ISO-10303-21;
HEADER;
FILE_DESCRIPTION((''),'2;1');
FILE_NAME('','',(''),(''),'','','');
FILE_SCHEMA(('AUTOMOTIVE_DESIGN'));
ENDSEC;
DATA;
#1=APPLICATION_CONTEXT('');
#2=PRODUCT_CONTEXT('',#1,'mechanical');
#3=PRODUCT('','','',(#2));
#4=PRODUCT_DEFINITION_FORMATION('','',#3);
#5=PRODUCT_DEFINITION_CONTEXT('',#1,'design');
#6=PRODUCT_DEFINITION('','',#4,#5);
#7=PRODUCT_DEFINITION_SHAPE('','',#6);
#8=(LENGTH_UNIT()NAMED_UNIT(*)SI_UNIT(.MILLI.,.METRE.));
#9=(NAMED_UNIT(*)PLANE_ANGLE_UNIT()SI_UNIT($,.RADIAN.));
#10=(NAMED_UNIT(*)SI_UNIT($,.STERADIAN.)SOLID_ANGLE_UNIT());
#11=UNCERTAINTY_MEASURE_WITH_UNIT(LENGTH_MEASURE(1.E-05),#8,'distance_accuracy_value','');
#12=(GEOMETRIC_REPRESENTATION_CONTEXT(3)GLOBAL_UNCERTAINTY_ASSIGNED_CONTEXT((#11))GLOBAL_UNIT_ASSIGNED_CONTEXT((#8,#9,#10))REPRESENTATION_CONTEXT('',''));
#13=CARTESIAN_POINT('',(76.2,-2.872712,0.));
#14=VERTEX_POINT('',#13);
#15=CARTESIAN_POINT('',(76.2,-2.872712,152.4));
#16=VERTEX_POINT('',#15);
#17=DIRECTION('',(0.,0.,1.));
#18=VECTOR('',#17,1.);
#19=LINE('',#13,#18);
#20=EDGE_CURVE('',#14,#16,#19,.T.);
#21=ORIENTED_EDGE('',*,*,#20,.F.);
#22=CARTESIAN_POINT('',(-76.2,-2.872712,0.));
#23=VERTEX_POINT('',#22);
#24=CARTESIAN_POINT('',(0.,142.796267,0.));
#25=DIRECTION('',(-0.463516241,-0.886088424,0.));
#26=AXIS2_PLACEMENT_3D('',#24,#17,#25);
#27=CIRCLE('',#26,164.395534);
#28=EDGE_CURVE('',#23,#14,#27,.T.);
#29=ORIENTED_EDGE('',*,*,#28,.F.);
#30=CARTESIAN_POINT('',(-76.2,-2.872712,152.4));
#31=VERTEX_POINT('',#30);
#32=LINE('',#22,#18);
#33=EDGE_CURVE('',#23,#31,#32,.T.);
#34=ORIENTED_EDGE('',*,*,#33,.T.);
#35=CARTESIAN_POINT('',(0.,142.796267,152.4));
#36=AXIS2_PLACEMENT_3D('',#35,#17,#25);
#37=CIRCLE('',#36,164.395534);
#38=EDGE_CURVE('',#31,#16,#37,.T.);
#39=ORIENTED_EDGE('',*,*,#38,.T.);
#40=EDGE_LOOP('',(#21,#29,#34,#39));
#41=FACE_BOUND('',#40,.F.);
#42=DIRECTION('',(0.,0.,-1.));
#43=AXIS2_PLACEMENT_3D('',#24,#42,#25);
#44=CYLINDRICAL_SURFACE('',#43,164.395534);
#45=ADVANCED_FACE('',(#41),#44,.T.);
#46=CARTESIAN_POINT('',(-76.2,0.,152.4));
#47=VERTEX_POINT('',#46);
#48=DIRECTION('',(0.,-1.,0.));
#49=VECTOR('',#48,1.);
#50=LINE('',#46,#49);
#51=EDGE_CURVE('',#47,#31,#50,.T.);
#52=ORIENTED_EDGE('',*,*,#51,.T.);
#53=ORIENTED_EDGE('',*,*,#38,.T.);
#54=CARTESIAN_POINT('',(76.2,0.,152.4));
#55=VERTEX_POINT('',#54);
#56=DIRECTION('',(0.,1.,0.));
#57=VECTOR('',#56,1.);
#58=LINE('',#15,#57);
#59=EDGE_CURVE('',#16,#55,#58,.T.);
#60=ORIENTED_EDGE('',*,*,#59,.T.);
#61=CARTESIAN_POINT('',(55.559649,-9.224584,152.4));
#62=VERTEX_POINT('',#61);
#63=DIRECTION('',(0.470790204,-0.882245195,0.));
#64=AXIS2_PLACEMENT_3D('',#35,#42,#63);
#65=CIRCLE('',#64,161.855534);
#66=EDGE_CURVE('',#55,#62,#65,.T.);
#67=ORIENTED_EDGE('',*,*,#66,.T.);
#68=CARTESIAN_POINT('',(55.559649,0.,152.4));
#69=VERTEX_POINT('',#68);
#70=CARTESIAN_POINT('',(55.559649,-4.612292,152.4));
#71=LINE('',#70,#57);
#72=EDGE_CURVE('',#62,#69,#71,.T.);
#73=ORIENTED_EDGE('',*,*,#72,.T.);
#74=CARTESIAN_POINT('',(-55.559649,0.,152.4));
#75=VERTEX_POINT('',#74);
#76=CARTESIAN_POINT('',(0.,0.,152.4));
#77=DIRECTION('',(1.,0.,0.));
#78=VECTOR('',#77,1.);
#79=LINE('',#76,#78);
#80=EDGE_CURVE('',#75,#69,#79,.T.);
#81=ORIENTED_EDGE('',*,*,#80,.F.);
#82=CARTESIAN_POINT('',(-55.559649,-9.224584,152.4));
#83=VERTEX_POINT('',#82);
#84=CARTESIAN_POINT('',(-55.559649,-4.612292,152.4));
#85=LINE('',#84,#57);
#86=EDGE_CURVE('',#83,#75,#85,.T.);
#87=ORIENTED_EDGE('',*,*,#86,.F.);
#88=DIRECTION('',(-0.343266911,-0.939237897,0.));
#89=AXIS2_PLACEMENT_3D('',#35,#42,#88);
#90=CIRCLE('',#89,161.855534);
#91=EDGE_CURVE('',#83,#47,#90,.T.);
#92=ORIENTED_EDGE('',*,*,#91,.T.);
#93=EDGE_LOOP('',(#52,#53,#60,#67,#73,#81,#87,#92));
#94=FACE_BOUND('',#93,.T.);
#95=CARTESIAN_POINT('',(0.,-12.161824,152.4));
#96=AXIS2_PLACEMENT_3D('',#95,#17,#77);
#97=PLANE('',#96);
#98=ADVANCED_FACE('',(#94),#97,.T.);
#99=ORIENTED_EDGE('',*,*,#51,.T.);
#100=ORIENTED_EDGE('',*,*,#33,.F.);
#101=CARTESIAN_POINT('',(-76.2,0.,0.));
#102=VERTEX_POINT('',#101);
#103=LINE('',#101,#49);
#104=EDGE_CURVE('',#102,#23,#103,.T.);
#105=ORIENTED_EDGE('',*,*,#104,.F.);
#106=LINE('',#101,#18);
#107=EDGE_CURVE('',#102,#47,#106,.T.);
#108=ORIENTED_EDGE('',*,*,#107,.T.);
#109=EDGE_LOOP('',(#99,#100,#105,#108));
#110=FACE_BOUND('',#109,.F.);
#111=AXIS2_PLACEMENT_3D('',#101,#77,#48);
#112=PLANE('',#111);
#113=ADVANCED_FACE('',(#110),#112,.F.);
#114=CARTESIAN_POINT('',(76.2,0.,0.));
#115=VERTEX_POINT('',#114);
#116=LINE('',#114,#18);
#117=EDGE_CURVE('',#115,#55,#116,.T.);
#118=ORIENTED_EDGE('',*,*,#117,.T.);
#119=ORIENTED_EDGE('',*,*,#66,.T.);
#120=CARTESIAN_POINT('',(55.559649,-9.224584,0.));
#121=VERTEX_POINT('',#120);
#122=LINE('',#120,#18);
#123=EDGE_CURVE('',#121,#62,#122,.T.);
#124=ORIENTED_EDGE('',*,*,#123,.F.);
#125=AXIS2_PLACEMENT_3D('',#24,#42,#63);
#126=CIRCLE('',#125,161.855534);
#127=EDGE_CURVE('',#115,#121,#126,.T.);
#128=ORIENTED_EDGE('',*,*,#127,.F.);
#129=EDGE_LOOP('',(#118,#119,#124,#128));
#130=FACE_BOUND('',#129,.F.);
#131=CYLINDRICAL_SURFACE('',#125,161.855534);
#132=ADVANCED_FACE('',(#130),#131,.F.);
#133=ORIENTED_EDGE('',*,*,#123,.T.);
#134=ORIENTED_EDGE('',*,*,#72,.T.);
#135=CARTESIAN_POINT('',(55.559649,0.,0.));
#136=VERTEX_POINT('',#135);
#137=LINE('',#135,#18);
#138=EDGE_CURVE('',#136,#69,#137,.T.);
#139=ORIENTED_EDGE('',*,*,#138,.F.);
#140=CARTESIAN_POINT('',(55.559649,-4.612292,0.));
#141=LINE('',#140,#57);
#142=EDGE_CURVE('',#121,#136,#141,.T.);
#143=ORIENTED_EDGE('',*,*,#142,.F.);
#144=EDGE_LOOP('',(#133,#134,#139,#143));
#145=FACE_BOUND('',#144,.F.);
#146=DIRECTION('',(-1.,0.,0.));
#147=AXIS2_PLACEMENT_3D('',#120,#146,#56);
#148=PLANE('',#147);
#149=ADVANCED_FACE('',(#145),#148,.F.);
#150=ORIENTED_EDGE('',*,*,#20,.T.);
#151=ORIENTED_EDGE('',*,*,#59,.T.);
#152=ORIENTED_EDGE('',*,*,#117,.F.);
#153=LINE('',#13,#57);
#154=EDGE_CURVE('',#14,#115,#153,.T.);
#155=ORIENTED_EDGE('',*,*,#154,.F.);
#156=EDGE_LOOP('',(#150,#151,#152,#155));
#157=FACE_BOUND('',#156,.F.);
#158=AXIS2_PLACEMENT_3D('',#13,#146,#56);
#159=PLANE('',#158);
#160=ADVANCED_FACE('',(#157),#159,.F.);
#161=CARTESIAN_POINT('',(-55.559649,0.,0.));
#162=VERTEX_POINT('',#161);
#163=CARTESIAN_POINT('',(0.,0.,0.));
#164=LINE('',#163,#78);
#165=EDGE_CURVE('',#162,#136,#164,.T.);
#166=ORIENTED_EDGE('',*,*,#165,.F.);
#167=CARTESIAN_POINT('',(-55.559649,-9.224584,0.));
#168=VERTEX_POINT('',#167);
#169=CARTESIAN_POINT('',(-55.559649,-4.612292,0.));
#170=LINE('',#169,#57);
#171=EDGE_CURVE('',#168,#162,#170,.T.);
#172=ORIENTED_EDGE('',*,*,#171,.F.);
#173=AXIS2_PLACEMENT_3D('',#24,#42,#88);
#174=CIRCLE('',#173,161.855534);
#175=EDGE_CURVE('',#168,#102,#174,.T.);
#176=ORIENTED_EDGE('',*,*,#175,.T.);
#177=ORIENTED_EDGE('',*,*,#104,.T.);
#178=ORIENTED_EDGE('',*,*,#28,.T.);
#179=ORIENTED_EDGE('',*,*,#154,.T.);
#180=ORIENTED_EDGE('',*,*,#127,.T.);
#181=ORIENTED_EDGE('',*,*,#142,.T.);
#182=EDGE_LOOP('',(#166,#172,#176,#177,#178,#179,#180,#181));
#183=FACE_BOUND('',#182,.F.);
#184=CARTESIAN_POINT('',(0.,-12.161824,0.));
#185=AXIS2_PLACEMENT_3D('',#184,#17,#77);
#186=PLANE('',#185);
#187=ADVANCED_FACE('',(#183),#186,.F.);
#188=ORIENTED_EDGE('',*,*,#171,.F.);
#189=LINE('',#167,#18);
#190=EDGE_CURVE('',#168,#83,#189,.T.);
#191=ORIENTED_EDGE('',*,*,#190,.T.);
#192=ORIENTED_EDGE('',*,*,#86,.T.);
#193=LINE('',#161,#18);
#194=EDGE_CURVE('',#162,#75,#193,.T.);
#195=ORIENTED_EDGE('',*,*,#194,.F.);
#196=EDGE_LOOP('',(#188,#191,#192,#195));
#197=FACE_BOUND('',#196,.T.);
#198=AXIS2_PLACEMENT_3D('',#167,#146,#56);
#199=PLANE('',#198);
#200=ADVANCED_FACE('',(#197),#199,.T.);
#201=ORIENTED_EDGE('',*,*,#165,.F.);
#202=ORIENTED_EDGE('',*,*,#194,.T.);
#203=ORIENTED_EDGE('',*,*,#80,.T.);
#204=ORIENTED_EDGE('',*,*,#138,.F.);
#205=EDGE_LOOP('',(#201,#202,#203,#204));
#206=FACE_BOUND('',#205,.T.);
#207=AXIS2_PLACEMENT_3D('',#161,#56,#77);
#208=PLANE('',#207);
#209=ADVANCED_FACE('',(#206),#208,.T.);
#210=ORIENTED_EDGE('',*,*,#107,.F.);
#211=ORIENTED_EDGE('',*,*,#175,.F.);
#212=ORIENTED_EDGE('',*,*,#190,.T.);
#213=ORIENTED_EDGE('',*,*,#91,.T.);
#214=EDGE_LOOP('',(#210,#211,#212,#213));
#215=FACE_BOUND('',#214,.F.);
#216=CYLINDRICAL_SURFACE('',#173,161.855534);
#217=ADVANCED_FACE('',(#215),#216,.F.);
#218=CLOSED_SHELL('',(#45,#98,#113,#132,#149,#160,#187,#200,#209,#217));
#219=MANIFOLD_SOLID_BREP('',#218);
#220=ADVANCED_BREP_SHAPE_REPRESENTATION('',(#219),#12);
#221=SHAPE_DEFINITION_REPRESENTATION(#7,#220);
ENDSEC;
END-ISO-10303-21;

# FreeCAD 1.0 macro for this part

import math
import FreeCAD as App
import Part
import Sketcher
from FreeCAD import Vector
Q = App.Units.Quantity

doc = App.newDocument("Part")
body = doc.addObject("PartDesign::Body", "Body")

sketch1 = body.newObject("Sketcher::SketchObject", "Sketch")
sketch1.AttachmentSupport = (doc.getObject("XY_Plane"), [""])
sketch1.MapMode = "FlatFace"
sketch1.addGeometry([
    Part.LineSegment(Vector(55.6, -9.2, 0), Vector(55.6, 0, 0)),
    Part.LineSegment(Vector(55.6, 0, 0), Vector(-55.6, 0, 0)),
    Part.LineSegment(Vector(-55.6, 0, 0), Vector(-55.6, -9.2, 0)),
    Part.ArcOfCircle(Part.Circle(Vector(0, 142.8, 0), Vector(0, 0, 1), 161.9), math.radians(-118.09), math.radians(-110.08)),
    Part.LineSegment(Vector(-76.2, 0, 0), Vector(-76.2, -2.9, 0)),
    Part.ArcOfCircle(Part.Circle(Vector(0, 142.8, 0), Vector(0, 0, 1), 164.4), math.radians(-118), math.radians(-62)),
    Part.LineSegment(Vector(76.2, -2.9, 0), Vector(76.2, 0, 0)),
    Part.ArcOfCircle(Part.Circle(Vector(0, 142.8, 0), Vector(0, 0, 1), 161.9), math.radians(-69.92), math.radians(-61.91)),
], False)
sketch1.addConstraint([
    Sketcher.Constraint("Coincident", 0, 2, 1, 1),
    Sketcher.Constraint("Coincident", 1, 2, 2, 1),
    Sketcher.Constraint("Coincident", 2, 2, 3, 2),
    Sketcher.Constraint("Coincident", 3, 1, 4, 1),
    Sketcher.Constraint("Coincident", 4, 2, 5, 1),
    Sketcher.Constraint("Coincident", 5, 2, 6, 1),
    Sketcher.Constraint("Coincident", 6, 2, 7, 2),
    Sketcher.Constraint("Coincident", 7, 1, 0, 1),
    Sketcher.Constraint("Vertical", 0),
    Sketcher.Constraint("Horizontal", 1),
    Sketcher.Constraint("Vertical", 2),
    Sketcher.Constraint("Vertical", 4),
    Sketcher.Constraint("Vertical", 6),
    Sketcher.Constraint("Coincident", 5, 3, 3, 3),
    Sketcher.Constraint("Coincident", 7, 3, 3, 3),
    Sketcher.Constraint("Equal", 3, 7),
    Sketcher.Constraint("Symmetric", 0, 2, 1, 2, -1, 1),
    Sketcher.Constraint("Symmetric", 3, 1, 6, 2, -1, 1),
    Sketcher.Constraint("PointOnObject", 3, 3, -2),
    Sketcher.Constraint("DistanceX", 3, 1, -1, 1, Q("3 in")),
    Sketcher.Constraint("DistanceX", 1, 2, 1, 1, Q("111.119299 mm")),
    Sketcher.Constraint("Radius", 3, Q("161.855534 mm")),
    Sketcher.Constraint("Radius", 5, Q("164.395534 mm")),
])
pad1 = body.newObject("PartDesign::Pad", "Pad")
pad1.Profile = sketch1
pad1.Length = Q("6 in")

doc.recompute()
